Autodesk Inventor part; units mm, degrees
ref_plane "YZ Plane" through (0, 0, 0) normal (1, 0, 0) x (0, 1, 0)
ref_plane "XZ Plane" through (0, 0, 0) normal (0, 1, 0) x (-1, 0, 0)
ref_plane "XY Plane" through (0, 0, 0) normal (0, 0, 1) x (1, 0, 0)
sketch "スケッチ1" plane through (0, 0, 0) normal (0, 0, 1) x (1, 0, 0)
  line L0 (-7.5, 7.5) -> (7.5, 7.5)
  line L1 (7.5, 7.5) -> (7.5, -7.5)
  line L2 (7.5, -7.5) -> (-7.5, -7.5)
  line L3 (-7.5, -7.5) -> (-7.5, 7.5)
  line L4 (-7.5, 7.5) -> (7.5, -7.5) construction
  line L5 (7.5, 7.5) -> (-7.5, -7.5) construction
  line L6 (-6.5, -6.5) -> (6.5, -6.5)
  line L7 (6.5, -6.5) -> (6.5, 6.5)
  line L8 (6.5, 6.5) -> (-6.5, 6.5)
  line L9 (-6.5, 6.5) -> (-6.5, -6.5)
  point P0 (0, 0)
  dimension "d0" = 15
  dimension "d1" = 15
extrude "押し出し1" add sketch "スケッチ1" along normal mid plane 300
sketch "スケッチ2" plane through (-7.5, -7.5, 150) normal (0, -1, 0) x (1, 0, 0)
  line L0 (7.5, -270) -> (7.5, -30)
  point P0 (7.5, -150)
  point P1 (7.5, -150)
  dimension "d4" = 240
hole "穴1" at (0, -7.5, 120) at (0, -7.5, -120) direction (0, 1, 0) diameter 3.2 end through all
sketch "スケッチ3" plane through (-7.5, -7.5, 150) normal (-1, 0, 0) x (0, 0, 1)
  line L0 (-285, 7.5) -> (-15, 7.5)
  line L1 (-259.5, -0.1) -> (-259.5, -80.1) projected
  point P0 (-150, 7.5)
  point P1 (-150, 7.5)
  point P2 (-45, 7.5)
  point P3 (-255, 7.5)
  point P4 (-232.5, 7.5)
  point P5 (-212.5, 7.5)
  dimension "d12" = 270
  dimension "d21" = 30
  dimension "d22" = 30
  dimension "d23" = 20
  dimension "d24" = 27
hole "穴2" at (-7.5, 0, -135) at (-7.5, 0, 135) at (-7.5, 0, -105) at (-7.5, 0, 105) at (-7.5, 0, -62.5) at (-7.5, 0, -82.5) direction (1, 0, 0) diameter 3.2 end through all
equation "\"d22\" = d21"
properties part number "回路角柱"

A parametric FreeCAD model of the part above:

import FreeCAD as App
import Part
import Sketcher
from FreeCAD import Vector
Q = App.Units.Quantity


def add_polygon(sketch, points):
    """Adds a closed chain of lines whose ends are joined by coincident constraints."""
    first, n = sketch.GeometryCount, len(points)
    for a, b in zip(points, points[1:] + points[:1]):
        sketch.addGeometry(Part.LineSegment(App.Vector(*a, 0), App.Vector(*b, 0)), False)
    for i in range(n):
        sketch.addConstraint(Sketcher.Constraint("Coincident", first + i, 2, first + (i + 1) % n, 1))

doc = App.newDocument("Part")
params = doc.addObject("Spreadsheet::Sheet", "Params")
for row, (alias, value) in enumerate([
    ("sketch1_width", "15 mm"),
    ("sketch1_width2", "13 mm"),
    ("pad1_length", "300 mm"),
    ("sketch2_diameter", "3.2 mm"),
    ("hole_diameter", "3.2 mm"),
    ("sketch3_diameter", "3.2 mm"),
    ("hole2_diameter", "3.2 mm"),
], start=1):
    params.set(f"A{row}", alias)
    params.set(f"B{row}", "=" + value)
    params.setAlias(f"B{row}", alias)

body = doc.addObject("PartDesign::Body", "Body")

# Sketch on XY plane
sketch1 = doc.addObject("Sketcher::SketchObject", "Sketch")
body.addObject(sketch1)
sketch1.AttachmentSupport = (doc.XY_Plane, [""])
sketch1.MapMode = "FlatFace"
add_polygon(sketch1, [(8, 8), (-8, 8), (-8, -8), (8, -8)])  # lines 0-3
add_polygon(sketch1, [(6, -6), (-6, -6), (-6, 6), (6, 6)])  # lines 4-7
sketch1.addConstraint([
    Sketcher.Constraint("Horizontal", 0),
    Sketcher.Constraint("Vertical", 1),
    Sketcher.Constraint("Horizontal", 2),
    Sketcher.Constraint("Vertical", 3),
    Sketcher.Constraint("Horizontal", 4),
    Sketcher.Constraint("Vertical", 5),
    Sketcher.Constraint("Horizontal", 6),
    Sketcher.Constraint("Vertical", 7),
    Sketcher.Constraint("Symmetric", 0, 2, 2, 2, -1, 1),
    Sketcher.Constraint("Symmetric", 4, 2, 6, 2, -1, 1),
    Sketcher.Constraint("Equal", 2, 1),
    Sketcher.Constraint("Equal", 6, 5),
    Sketcher.Constraint("DistanceX", 0, 2, 0, 1, Q("15 mm")),
    Sketcher.Constraint("DistanceX", 4, 2, 4, 1, Q("13 mm")),
])
sketch1.setExpression("Constraints[20]", "Params.sketch1_width")
sketch1.setExpression("Constraints[21]", "Params.sketch1_width2")
pad1 = doc.addObject("PartDesign::Pad", "Pad")
body.addObject(pad1)
pad1.Profile = sketch1
pad1.setExpression("Length", "Params.pad1_length")
pad1.Midplane = True

# Sketch on XZ plane
sketch2 = doc.addObject("Sketcher::SketchObject", "Sketch001")
body.addObject(sketch2)
sketch2.AttachmentSupport = (doc.XZ_Plane, [""])
sketch2.MapMode = "FlatFace"
sketch2.AttachmentOffset = App.Placement(Vector(0, 0, 7.5), App.Rotation())
sketch2.addGeometry([
    Part.Circle(Vector(0, 120, 0), Vector(0, 0, 1), 1.6),
    Part.Circle(Vector(0, -120, 0), Vector(0, 0, 1), 1.6),
], False)
sketch2.addConstraint([
    Sketcher.Constraint("Equal", 0, 1),
    Sketcher.Constraint("Symmetric", 0, 3, 1, 3, -1, 1),
    Sketcher.Constraint("PointOnObject", 0, 3, -2),
    Sketcher.Constraint("Diameter", 0, Q("3.2 mm")),
    Sketcher.Constraint("DistanceY", -1, 1, 0, 3, Q("120 mm")),
])
sketch2.setExpression("Constraints[3]", "Params.sketch2_diameter")
doc.recompute()
hole = doc.addObject("PartDesign::Hole", "Hole")
body.addObject(hole)
hole.Profile = sketch2
hole.ThreadType = "None"
hole.setExpression("Diameter", "Params.hole_diameter")
hole.DepthType = "ThroughAll"

# Sketch on YZ plane
sketch3 = doc.addObject("Sketcher::SketchObject", "Sketch002")
body.addObject(sketch3)
sketch3.AttachmentSupport = (doc.YZ_Plane, [""])
sketch3.MapMode = "FlatFace"
sketch3.AttachmentOffset = App.Placement(Vector(0, 0, -7.5), App.Rotation())
sketch3.addGeometry([
    Part.Circle(Vector(0, -135, 0), Vector(0, 0, 1), 1.6),  # 0
    Part.Circle(Vector(0, 135, 0), Vector(0, 0, 1), 1.6),  # 1
    Part.Circle(Vector(0, -105, 0), Vector(0, 0, 1), 1.6),  # 2
    Part.Circle(Vector(0, 105, 0), Vector(0, 0, 1), 1.6),  # 3
    Part.Circle(Vector(0, -62.5, 0), Vector(0, 0, 1), 1.6),  # 4
    Part.Circle(Vector(0, -82.5, 0), Vector(0, 0, 1), 1.6),  # 5
], False)
sketch3.addConstraint([
    Sketcher.Constraint("Equal", 0, 1),
    Sketcher.Constraint("Equal", 1, 2),
    Sketcher.Constraint("Equal", 2, 3),
    Sketcher.Constraint("Equal", 3, 4),
    Sketcher.Constraint("Equal", 4, 5),
    Sketcher.Constraint("Symmetric", 0, 3, 1, 3, -1, 1),
    Sketcher.Constraint("Symmetric", 2, 3, 3, 3, -1, 1),
    Sketcher.Constraint("PointOnObject", 0, 3, -2),
    Sketcher.Constraint("PointOnObject", 2, 3, -2),
    Sketcher.Constraint("PointOnObject", 4, 3, -2),
    Sketcher.Constraint("PointOnObject", 5, 3, -2),
    Sketcher.Constraint("Diameter", 0, Q("3.2 mm")),
    Sketcher.Constraint("DistanceY", 0, 3, -1, 1, Q("135 mm")),
    Sketcher.Constraint("DistanceY", 2, 3, -1, 1, Q("105 mm")),
    Sketcher.Constraint("DistanceY", 5, 3, 4, 3, Q("20 mm")),
    Sketcher.Constraint("DistanceY", 4, 3, -1, 1, Q("62.5 mm")),
])
sketch3.setExpression("Constraints[11]", "Params.sketch3_diameter")
doc.recompute()
hole2 = doc.addObject("PartDesign::Hole", "Hole001")
body.addObject(hole2)
hole2.Profile = sketch3
hole2.ThreadType = "None"
hole2.setExpression("Diameter", "Params.hole2_diameter")
hole2.DepthType = "ThroughAll"
hole2.Reversed = True

doc.recompute()
